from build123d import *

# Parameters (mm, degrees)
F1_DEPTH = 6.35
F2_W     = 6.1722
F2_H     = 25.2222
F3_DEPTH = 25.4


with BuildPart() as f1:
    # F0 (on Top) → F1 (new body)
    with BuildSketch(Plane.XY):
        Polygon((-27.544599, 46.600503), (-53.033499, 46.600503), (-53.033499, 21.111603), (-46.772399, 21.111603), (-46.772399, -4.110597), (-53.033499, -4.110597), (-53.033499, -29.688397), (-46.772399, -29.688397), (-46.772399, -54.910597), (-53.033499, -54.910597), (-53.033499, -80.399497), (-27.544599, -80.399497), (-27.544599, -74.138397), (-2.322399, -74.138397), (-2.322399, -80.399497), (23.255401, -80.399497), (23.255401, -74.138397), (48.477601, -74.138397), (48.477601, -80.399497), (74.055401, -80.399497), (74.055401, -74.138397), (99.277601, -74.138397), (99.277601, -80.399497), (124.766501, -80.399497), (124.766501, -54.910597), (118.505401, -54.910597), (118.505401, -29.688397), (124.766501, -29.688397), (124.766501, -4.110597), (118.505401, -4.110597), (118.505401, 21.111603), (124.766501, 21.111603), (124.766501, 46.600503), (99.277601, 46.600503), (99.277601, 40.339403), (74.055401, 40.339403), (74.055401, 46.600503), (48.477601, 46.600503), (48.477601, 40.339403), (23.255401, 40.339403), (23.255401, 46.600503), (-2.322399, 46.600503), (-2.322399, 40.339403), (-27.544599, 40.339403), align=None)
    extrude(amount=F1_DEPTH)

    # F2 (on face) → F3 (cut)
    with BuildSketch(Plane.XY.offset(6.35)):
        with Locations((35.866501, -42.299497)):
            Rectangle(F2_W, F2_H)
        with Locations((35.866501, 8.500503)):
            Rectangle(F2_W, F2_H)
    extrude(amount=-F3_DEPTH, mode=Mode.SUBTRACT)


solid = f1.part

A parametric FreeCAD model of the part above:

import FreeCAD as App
import Part
import Sketcher
from FreeCAD import Vector
Q = App.Units.Quantity


def add_polygon(sketch, points):
    """Adds a closed chain of lines whose ends are joined by coincident constraints."""
    first, n = sketch.GeometryCount, len(points)
    for a, b in zip(points, points[1:] + points[:1]):
        sketch.addGeometry(Part.LineSegment(App.Vector(*a, 0), App.Vector(*b, 0)), False)
    for i in range(n):
        sketch.addConstraint(Sketcher.Constraint("Coincident", first + i, 2, first + (i + 1) % n, 1))

doc = App.newDocument("Part")
body = doc.addObject("PartDesign::Body", "Body")

# Sketch on XY plane
sketch1 = doc.addObject("Sketcher::SketchObject", "Sketch")
body.addObject(sketch1)
sketch1.AttachmentSupport = (doc.XY_Plane, [""])
sketch1.MapMode = "FlatFace"
add_polygon(sketch1, [(-28, 47), (-53, 47), (-53, 21), (-47, 21), (-47, -4), (-53, -4), (-53, -30), (-47, -30), (-47, -55), (-53, -55), (-53, -80), (-28, -80), (-28, -74), (-2, -74), (-2, -80), (23, -80), (23, -74), (48, -74), (48, -80), (74, -80), (74, -74), (99, -74), (99, -80), (125, -80), (125, -55), (119, -55), (119, -30), (125, -30), (125, -4), (119, -4), (119, 21), (125, 21), (125, 47), (99, 47), (99, 40), (74, 40), (74, 47), (48, 47), (48, 40), (23, 40), (23, 47), (-2, 47), (-2, 40), (-28, 40)])  # lines 0-43
sketch1.addConstraint(Sketcher.Constraint("Horizontal", 0))
sketch1.addConstraint(Sketcher.Constraint("Vertical", 1))
sketch1.addConstraint(Sketcher.Constraint("Horizontal", 2))
sketch1.addConstraint(Sketcher.Constraint("Vertical", 3))
sketch1.addConstraint(Sketcher.Constraint("Horizontal", 4))
sketch1.addConstraint(Sketcher.Constraint("Vertical", 5))
sketch1.addConstraint(Sketcher.Constraint("Horizontal", 6))
sketch1.addConstraint(Sketcher.Constraint("Vertical", 7))
sketch1.addConstraint(Sketcher.Constraint("Horizontal", 8))
sketch1.addConstraint(Sketcher.Constraint("Vertical", 9))
sketch1.addConstraint(Sketcher.Constraint("Horizontal", 10))
sketch1.addConstraint(Sketcher.Constraint("Vertical", 11))
sketch1.addConstraint(Sketcher.Constraint("Horizontal", 12))
sketch1.addConstraint(Sketcher.Constraint("Vertical", 13))
sketch1.addConstraint(Sketcher.Constraint("Horizontal", 14))
sketch1.addConstraint(Sketcher.Constraint("Vertical", 15))
sketch1.addConstraint(Sketcher.Constraint("Horizontal", 16))
sketch1.addConstraint(Sketcher.Constraint("Vertical", 17))
sketch1.addConstraint(Sketcher.Constraint("Horizontal", 18))
sketch1.addConstraint(Sketcher.Constraint("Vertical", 19))
sketch1.addConstraint(Sketcher.Constraint("Horizontal", 20))
sketch1.addConstraint(Sketcher.Constraint("Vertical", 21))
sketch1.addConstraint(Sketcher.Constraint("Horizontal", 22))
sketch1.addConstraint(Sketcher.Constraint("Vertical", 23))
sketch1.addConstraint(Sketcher.Constraint("Horizontal", 24))
sketch1.addConstraint(Sketcher.Constraint("Vertical", 25))
sketch1.addConstraint(Sketcher.Constraint("Horizontal", 26))
sketch1.addConstraint(Sketcher.Constraint("Vertical", 27))
sketch1.addConstraint(Sketcher.Constraint("Horizontal", 28))
sketch1.addConstraint(Sketcher.Constraint("Vertical", 29))
sketch1.addConstraint(Sketcher.Constraint("Horizontal", 30))
sketch1.addConstraint(Sketcher.Constraint("Vertical", 31))
sketch1.addConstraint(Sketcher.Constraint("Horizontal", 32))
sketch1.addConstraint(Sketcher.Constraint("Vertical", 33))
sketch1.addConstraint(Sketcher.Constraint("Horizontal", 34))
sketch1.addConstraint(Sketcher.Constraint("Vertical", 35))
sketch1.addConstraint(Sketcher.Constraint("Horizontal", 36))
sketch1.addConstraint(Sketcher.Constraint("Vertical", 37))
sketch1.addConstraint(Sketcher.Constraint("Horizontal", 38))
sketch1.addConstraint(Sketcher.Constraint("Vertical", 39))
sketch1.addConstraint(Sketcher.Constraint("Horizontal", 40))
sketch1.addConstraint(Sketcher.Constraint("Vertical", 41))
sketch1.addConstraint(Sketcher.Constraint("Horizontal", 42))
sketch1.addConstraint(Sketcher.Constraint("Vertical", 43))
sketch1.addConstraint(Sketcher.Constraint("Horizontal", 10, 2, 13, 2))
sketch1.addConstraint(Sketcher.Constraint("Horizontal", 12, 2, 15, 2))
sketch1.addConstraint(Sketcher.Constraint("Horizontal", 14, 2, 17, 2))
sketch1.addConstraint(Sketcher.Constraint("Horizontal", 16, 2, 19, 2))
sketch1.addConstraint(Sketcher.Constraint("Horizontal", 18, 2, 21, 2))
sketch1.addConstraint(Sketcher.Constraint("Horizontal", 8, 2, 23, 2))
sketch1.addConstraint(Sketcher.Constraint("Horizontal", 6, 2, 25, 2))
sketch1.addConstraint(Sketcher.Constraint("Horizontal", 4, 2, 27, 2))
sketch1.addConstraint(Sketcher.Constraint("Horizontal", 2, 2, 29, 2))
sketch1.addConstraint(Sketcher.Constraint("Horizontal", 0, 2, 31, 2))
sketch1.addConstraint(Sketcher.Constraint("Horizontal", 32, 2, 35, 2))
sketch1.addConstraint(Sketcher.Constraint("Horizontal", 34, 2, 37, 2))
sketch1.addConstraint(Sketcher.Constraint("Horizontal", 36, 2, 39, 2))
sketch1.addConstraint(Sketcher.Constraint("Horizontal", 38, 2, 41, 2))
sketch1.addConstraint(Sketcher.Constraint("Vertical", 1, 2, 4, 2))
sketch1.addConstraint(Sketcher.Constraint("Vertical", 3, 2, 6, 2))
sketch1.addConstraint(Sketcher.Constraint("Vertical", 5, 2, 8, 2))
sketch1.addConstraint(Sketcher.Constraint("Vertical", 23, 2, 26, 2))
sketch1.addConstraint(Sketcher.Constraint("Vertical", 25, 2, 28, 2))
sketch1.addConstraint(Sketcher.Constraint("Vertical", 27, 2, 30, 2))
sketch1.addConstraint(Sketcher.Constraint("Vertical", 21, 2, 32, 2))
sketch1.addConstraint(Sketcher.Constraint("Vertical", 19, 2, 34, 2))
sketch1.addConstraint(Sketcher.Constraint("Vertical", 17, 2, 36, 2))
sketch1.addConstraint(Sketcher.Constraint("Vertical", 15, 2, 38, 2))
sketch1.addConstraint(Sketcher.Constraint("Vertical", 13, 2, 40, 2))
sketch1.addConstraint(Sketcher.Constraint("Vertical", 11, 2, 42, 2))
sketch1.addConstraint(Sketcher.Constraint("Equal", 12, 16))
sketch1.addConstraint(Sketcher.Constraint("Equal", 14, 18))
sketch1.addConstraint(Sketcher.Constraint("Equal", 16, 20))
sketch1.addConstraint(Sketcher.Constraint("Equal", 10, 22))
sketch1.addConstraint(Sketcher.Constraint("Equal", 8, 24))
sketch1.addConstraint(Sketcher.Constraint("Equal", 32, 1))
sketch1.addConstraint(Sketcher.Constraint("Equal", 42, 3))
sketch1.addConstraint(Sketcher.Constraint("Equal", 40, 5))
sketch1.addConstraint(Sketcher.Constraint("Equal", 3, 7))
sketch1.addConstraint(Sketcher.Constraint("Equal", 1, 9))
sketch1.addConstraint(Sketcher.Constraint("Equal", 30, 11))
sketch1.addConstraint(Sketcher.Constraint("Equal", 21, 33))
sketch1.addConstraint(Sketcher.Constraint("DistanceY", 5, 2, 1, 2, Q("2 in")))
sketch1.addConstraint(Sketcher.Constraint("DistanceX", 12, 1, 12, 2, Q("0.993 in")))
sketch1.addConstraint(Sketcher.Constraint("DistanceY", 11, 2, 6, 2, Q("1.75 in")))
sketch1.addConstraint(Sketcher.Constraint("DistanceX", 0, 2, 0, 1, Q("1.0035 in")))
sketch1.addConstraint(Sketcher.Constraint("DistanceX", 0, 2, -1, 1, Q("53.033499 mm")))
sketch1.addConstraint(Sketcher.Constraint("DistanceY", -1, 1, 0, 2, Q("46.600503 mm")))
pad1 = doc.addObject("PartDesign::Pad", "Pad")
body.addObject(pad1)
pad1.Profile = sketch1
pad1.Length = Q("0.25 in")

# Sketch on XY plane
sketch2 = doc.addObject("Sketcher::SketchObject", "Sketch001")
body.addObject(sketch2)
sketch2.AttachmentSupport = (doc.XY_Plane, [""])
sketch2.MapMode = "FlatFace"
sketch2.AttachmentOffset = App.Placement(Vector(0, 0, 0.25 * 25.4), App.Rotation())
add_polygon(sketch2, [(33, -30), (33, -55), (39, -55), (39, -30)])  # lines 0-3
add_polygon(sketch2, [(33, 21), (33, -4), (39, -4), (39, 21)])  # lines 4-7
sketch2.addConstraint(Sketcher.Constraint("Vertical", 0))
sketch2.addConstraint(Sketcher.Constraint("Horizontal", 1))
sketch2.addConstraint(Sketcher.Constraint("Vertical", 2))
sketch2.addConstraint(Sketcher.Constraint("Horizontal", 3))
sketch2.addConstraint(Sketcher.Constraint("Vertical", 4))
sketch2.addConstraint(Sketcher.Constraint("Horizontal", 5))
sketch2.addConstraint(Sketcher.Constraint("Vertical", 6))
sketch2.addConstraint(Sketcher.Constraint("Horizontal", 7))
sketch2.addConstraint(Sketcher.Constraint("Vertical", 3, 2, 4, 2))
sketch2.addConstraint(Sketcher.Constraint("Vertical", 2, 2, 5, 2))
sketch2.addConstraint(Sketcher.Constraint("Equal", 2, 4))
sketch2.addConstraint(Sketcher.Constraint("DistanceY", 0, 2, 4, 2, Q("2 in")))
sketch2.addConstraint(Sketcher.Constraint("DistanceX", 1, 1, 1, 2, Q("0.243 in")))
sketch2.addConstraint(Sketcher.Constraint("DistanceY", 0, 2, 0, 1, Q("0.993 in")))
sketch2.addConstraint(Sketcher.Constraint("DistanceX", -1, 1, 0, 2, Q("32.780401 mm")))
sketch2.addConstraint(Sketcher.Constraint("DistanceY", 0, 2, -1, 1, Q("54.910597 mm")))
pocket1 = doc.addObject("PartDesign::Pocket", "Pocket")
body.addObject(pocket1)
pocket1.Profile = sketch2
pocket1.Length = Q("1 in")

doc.recompute()
